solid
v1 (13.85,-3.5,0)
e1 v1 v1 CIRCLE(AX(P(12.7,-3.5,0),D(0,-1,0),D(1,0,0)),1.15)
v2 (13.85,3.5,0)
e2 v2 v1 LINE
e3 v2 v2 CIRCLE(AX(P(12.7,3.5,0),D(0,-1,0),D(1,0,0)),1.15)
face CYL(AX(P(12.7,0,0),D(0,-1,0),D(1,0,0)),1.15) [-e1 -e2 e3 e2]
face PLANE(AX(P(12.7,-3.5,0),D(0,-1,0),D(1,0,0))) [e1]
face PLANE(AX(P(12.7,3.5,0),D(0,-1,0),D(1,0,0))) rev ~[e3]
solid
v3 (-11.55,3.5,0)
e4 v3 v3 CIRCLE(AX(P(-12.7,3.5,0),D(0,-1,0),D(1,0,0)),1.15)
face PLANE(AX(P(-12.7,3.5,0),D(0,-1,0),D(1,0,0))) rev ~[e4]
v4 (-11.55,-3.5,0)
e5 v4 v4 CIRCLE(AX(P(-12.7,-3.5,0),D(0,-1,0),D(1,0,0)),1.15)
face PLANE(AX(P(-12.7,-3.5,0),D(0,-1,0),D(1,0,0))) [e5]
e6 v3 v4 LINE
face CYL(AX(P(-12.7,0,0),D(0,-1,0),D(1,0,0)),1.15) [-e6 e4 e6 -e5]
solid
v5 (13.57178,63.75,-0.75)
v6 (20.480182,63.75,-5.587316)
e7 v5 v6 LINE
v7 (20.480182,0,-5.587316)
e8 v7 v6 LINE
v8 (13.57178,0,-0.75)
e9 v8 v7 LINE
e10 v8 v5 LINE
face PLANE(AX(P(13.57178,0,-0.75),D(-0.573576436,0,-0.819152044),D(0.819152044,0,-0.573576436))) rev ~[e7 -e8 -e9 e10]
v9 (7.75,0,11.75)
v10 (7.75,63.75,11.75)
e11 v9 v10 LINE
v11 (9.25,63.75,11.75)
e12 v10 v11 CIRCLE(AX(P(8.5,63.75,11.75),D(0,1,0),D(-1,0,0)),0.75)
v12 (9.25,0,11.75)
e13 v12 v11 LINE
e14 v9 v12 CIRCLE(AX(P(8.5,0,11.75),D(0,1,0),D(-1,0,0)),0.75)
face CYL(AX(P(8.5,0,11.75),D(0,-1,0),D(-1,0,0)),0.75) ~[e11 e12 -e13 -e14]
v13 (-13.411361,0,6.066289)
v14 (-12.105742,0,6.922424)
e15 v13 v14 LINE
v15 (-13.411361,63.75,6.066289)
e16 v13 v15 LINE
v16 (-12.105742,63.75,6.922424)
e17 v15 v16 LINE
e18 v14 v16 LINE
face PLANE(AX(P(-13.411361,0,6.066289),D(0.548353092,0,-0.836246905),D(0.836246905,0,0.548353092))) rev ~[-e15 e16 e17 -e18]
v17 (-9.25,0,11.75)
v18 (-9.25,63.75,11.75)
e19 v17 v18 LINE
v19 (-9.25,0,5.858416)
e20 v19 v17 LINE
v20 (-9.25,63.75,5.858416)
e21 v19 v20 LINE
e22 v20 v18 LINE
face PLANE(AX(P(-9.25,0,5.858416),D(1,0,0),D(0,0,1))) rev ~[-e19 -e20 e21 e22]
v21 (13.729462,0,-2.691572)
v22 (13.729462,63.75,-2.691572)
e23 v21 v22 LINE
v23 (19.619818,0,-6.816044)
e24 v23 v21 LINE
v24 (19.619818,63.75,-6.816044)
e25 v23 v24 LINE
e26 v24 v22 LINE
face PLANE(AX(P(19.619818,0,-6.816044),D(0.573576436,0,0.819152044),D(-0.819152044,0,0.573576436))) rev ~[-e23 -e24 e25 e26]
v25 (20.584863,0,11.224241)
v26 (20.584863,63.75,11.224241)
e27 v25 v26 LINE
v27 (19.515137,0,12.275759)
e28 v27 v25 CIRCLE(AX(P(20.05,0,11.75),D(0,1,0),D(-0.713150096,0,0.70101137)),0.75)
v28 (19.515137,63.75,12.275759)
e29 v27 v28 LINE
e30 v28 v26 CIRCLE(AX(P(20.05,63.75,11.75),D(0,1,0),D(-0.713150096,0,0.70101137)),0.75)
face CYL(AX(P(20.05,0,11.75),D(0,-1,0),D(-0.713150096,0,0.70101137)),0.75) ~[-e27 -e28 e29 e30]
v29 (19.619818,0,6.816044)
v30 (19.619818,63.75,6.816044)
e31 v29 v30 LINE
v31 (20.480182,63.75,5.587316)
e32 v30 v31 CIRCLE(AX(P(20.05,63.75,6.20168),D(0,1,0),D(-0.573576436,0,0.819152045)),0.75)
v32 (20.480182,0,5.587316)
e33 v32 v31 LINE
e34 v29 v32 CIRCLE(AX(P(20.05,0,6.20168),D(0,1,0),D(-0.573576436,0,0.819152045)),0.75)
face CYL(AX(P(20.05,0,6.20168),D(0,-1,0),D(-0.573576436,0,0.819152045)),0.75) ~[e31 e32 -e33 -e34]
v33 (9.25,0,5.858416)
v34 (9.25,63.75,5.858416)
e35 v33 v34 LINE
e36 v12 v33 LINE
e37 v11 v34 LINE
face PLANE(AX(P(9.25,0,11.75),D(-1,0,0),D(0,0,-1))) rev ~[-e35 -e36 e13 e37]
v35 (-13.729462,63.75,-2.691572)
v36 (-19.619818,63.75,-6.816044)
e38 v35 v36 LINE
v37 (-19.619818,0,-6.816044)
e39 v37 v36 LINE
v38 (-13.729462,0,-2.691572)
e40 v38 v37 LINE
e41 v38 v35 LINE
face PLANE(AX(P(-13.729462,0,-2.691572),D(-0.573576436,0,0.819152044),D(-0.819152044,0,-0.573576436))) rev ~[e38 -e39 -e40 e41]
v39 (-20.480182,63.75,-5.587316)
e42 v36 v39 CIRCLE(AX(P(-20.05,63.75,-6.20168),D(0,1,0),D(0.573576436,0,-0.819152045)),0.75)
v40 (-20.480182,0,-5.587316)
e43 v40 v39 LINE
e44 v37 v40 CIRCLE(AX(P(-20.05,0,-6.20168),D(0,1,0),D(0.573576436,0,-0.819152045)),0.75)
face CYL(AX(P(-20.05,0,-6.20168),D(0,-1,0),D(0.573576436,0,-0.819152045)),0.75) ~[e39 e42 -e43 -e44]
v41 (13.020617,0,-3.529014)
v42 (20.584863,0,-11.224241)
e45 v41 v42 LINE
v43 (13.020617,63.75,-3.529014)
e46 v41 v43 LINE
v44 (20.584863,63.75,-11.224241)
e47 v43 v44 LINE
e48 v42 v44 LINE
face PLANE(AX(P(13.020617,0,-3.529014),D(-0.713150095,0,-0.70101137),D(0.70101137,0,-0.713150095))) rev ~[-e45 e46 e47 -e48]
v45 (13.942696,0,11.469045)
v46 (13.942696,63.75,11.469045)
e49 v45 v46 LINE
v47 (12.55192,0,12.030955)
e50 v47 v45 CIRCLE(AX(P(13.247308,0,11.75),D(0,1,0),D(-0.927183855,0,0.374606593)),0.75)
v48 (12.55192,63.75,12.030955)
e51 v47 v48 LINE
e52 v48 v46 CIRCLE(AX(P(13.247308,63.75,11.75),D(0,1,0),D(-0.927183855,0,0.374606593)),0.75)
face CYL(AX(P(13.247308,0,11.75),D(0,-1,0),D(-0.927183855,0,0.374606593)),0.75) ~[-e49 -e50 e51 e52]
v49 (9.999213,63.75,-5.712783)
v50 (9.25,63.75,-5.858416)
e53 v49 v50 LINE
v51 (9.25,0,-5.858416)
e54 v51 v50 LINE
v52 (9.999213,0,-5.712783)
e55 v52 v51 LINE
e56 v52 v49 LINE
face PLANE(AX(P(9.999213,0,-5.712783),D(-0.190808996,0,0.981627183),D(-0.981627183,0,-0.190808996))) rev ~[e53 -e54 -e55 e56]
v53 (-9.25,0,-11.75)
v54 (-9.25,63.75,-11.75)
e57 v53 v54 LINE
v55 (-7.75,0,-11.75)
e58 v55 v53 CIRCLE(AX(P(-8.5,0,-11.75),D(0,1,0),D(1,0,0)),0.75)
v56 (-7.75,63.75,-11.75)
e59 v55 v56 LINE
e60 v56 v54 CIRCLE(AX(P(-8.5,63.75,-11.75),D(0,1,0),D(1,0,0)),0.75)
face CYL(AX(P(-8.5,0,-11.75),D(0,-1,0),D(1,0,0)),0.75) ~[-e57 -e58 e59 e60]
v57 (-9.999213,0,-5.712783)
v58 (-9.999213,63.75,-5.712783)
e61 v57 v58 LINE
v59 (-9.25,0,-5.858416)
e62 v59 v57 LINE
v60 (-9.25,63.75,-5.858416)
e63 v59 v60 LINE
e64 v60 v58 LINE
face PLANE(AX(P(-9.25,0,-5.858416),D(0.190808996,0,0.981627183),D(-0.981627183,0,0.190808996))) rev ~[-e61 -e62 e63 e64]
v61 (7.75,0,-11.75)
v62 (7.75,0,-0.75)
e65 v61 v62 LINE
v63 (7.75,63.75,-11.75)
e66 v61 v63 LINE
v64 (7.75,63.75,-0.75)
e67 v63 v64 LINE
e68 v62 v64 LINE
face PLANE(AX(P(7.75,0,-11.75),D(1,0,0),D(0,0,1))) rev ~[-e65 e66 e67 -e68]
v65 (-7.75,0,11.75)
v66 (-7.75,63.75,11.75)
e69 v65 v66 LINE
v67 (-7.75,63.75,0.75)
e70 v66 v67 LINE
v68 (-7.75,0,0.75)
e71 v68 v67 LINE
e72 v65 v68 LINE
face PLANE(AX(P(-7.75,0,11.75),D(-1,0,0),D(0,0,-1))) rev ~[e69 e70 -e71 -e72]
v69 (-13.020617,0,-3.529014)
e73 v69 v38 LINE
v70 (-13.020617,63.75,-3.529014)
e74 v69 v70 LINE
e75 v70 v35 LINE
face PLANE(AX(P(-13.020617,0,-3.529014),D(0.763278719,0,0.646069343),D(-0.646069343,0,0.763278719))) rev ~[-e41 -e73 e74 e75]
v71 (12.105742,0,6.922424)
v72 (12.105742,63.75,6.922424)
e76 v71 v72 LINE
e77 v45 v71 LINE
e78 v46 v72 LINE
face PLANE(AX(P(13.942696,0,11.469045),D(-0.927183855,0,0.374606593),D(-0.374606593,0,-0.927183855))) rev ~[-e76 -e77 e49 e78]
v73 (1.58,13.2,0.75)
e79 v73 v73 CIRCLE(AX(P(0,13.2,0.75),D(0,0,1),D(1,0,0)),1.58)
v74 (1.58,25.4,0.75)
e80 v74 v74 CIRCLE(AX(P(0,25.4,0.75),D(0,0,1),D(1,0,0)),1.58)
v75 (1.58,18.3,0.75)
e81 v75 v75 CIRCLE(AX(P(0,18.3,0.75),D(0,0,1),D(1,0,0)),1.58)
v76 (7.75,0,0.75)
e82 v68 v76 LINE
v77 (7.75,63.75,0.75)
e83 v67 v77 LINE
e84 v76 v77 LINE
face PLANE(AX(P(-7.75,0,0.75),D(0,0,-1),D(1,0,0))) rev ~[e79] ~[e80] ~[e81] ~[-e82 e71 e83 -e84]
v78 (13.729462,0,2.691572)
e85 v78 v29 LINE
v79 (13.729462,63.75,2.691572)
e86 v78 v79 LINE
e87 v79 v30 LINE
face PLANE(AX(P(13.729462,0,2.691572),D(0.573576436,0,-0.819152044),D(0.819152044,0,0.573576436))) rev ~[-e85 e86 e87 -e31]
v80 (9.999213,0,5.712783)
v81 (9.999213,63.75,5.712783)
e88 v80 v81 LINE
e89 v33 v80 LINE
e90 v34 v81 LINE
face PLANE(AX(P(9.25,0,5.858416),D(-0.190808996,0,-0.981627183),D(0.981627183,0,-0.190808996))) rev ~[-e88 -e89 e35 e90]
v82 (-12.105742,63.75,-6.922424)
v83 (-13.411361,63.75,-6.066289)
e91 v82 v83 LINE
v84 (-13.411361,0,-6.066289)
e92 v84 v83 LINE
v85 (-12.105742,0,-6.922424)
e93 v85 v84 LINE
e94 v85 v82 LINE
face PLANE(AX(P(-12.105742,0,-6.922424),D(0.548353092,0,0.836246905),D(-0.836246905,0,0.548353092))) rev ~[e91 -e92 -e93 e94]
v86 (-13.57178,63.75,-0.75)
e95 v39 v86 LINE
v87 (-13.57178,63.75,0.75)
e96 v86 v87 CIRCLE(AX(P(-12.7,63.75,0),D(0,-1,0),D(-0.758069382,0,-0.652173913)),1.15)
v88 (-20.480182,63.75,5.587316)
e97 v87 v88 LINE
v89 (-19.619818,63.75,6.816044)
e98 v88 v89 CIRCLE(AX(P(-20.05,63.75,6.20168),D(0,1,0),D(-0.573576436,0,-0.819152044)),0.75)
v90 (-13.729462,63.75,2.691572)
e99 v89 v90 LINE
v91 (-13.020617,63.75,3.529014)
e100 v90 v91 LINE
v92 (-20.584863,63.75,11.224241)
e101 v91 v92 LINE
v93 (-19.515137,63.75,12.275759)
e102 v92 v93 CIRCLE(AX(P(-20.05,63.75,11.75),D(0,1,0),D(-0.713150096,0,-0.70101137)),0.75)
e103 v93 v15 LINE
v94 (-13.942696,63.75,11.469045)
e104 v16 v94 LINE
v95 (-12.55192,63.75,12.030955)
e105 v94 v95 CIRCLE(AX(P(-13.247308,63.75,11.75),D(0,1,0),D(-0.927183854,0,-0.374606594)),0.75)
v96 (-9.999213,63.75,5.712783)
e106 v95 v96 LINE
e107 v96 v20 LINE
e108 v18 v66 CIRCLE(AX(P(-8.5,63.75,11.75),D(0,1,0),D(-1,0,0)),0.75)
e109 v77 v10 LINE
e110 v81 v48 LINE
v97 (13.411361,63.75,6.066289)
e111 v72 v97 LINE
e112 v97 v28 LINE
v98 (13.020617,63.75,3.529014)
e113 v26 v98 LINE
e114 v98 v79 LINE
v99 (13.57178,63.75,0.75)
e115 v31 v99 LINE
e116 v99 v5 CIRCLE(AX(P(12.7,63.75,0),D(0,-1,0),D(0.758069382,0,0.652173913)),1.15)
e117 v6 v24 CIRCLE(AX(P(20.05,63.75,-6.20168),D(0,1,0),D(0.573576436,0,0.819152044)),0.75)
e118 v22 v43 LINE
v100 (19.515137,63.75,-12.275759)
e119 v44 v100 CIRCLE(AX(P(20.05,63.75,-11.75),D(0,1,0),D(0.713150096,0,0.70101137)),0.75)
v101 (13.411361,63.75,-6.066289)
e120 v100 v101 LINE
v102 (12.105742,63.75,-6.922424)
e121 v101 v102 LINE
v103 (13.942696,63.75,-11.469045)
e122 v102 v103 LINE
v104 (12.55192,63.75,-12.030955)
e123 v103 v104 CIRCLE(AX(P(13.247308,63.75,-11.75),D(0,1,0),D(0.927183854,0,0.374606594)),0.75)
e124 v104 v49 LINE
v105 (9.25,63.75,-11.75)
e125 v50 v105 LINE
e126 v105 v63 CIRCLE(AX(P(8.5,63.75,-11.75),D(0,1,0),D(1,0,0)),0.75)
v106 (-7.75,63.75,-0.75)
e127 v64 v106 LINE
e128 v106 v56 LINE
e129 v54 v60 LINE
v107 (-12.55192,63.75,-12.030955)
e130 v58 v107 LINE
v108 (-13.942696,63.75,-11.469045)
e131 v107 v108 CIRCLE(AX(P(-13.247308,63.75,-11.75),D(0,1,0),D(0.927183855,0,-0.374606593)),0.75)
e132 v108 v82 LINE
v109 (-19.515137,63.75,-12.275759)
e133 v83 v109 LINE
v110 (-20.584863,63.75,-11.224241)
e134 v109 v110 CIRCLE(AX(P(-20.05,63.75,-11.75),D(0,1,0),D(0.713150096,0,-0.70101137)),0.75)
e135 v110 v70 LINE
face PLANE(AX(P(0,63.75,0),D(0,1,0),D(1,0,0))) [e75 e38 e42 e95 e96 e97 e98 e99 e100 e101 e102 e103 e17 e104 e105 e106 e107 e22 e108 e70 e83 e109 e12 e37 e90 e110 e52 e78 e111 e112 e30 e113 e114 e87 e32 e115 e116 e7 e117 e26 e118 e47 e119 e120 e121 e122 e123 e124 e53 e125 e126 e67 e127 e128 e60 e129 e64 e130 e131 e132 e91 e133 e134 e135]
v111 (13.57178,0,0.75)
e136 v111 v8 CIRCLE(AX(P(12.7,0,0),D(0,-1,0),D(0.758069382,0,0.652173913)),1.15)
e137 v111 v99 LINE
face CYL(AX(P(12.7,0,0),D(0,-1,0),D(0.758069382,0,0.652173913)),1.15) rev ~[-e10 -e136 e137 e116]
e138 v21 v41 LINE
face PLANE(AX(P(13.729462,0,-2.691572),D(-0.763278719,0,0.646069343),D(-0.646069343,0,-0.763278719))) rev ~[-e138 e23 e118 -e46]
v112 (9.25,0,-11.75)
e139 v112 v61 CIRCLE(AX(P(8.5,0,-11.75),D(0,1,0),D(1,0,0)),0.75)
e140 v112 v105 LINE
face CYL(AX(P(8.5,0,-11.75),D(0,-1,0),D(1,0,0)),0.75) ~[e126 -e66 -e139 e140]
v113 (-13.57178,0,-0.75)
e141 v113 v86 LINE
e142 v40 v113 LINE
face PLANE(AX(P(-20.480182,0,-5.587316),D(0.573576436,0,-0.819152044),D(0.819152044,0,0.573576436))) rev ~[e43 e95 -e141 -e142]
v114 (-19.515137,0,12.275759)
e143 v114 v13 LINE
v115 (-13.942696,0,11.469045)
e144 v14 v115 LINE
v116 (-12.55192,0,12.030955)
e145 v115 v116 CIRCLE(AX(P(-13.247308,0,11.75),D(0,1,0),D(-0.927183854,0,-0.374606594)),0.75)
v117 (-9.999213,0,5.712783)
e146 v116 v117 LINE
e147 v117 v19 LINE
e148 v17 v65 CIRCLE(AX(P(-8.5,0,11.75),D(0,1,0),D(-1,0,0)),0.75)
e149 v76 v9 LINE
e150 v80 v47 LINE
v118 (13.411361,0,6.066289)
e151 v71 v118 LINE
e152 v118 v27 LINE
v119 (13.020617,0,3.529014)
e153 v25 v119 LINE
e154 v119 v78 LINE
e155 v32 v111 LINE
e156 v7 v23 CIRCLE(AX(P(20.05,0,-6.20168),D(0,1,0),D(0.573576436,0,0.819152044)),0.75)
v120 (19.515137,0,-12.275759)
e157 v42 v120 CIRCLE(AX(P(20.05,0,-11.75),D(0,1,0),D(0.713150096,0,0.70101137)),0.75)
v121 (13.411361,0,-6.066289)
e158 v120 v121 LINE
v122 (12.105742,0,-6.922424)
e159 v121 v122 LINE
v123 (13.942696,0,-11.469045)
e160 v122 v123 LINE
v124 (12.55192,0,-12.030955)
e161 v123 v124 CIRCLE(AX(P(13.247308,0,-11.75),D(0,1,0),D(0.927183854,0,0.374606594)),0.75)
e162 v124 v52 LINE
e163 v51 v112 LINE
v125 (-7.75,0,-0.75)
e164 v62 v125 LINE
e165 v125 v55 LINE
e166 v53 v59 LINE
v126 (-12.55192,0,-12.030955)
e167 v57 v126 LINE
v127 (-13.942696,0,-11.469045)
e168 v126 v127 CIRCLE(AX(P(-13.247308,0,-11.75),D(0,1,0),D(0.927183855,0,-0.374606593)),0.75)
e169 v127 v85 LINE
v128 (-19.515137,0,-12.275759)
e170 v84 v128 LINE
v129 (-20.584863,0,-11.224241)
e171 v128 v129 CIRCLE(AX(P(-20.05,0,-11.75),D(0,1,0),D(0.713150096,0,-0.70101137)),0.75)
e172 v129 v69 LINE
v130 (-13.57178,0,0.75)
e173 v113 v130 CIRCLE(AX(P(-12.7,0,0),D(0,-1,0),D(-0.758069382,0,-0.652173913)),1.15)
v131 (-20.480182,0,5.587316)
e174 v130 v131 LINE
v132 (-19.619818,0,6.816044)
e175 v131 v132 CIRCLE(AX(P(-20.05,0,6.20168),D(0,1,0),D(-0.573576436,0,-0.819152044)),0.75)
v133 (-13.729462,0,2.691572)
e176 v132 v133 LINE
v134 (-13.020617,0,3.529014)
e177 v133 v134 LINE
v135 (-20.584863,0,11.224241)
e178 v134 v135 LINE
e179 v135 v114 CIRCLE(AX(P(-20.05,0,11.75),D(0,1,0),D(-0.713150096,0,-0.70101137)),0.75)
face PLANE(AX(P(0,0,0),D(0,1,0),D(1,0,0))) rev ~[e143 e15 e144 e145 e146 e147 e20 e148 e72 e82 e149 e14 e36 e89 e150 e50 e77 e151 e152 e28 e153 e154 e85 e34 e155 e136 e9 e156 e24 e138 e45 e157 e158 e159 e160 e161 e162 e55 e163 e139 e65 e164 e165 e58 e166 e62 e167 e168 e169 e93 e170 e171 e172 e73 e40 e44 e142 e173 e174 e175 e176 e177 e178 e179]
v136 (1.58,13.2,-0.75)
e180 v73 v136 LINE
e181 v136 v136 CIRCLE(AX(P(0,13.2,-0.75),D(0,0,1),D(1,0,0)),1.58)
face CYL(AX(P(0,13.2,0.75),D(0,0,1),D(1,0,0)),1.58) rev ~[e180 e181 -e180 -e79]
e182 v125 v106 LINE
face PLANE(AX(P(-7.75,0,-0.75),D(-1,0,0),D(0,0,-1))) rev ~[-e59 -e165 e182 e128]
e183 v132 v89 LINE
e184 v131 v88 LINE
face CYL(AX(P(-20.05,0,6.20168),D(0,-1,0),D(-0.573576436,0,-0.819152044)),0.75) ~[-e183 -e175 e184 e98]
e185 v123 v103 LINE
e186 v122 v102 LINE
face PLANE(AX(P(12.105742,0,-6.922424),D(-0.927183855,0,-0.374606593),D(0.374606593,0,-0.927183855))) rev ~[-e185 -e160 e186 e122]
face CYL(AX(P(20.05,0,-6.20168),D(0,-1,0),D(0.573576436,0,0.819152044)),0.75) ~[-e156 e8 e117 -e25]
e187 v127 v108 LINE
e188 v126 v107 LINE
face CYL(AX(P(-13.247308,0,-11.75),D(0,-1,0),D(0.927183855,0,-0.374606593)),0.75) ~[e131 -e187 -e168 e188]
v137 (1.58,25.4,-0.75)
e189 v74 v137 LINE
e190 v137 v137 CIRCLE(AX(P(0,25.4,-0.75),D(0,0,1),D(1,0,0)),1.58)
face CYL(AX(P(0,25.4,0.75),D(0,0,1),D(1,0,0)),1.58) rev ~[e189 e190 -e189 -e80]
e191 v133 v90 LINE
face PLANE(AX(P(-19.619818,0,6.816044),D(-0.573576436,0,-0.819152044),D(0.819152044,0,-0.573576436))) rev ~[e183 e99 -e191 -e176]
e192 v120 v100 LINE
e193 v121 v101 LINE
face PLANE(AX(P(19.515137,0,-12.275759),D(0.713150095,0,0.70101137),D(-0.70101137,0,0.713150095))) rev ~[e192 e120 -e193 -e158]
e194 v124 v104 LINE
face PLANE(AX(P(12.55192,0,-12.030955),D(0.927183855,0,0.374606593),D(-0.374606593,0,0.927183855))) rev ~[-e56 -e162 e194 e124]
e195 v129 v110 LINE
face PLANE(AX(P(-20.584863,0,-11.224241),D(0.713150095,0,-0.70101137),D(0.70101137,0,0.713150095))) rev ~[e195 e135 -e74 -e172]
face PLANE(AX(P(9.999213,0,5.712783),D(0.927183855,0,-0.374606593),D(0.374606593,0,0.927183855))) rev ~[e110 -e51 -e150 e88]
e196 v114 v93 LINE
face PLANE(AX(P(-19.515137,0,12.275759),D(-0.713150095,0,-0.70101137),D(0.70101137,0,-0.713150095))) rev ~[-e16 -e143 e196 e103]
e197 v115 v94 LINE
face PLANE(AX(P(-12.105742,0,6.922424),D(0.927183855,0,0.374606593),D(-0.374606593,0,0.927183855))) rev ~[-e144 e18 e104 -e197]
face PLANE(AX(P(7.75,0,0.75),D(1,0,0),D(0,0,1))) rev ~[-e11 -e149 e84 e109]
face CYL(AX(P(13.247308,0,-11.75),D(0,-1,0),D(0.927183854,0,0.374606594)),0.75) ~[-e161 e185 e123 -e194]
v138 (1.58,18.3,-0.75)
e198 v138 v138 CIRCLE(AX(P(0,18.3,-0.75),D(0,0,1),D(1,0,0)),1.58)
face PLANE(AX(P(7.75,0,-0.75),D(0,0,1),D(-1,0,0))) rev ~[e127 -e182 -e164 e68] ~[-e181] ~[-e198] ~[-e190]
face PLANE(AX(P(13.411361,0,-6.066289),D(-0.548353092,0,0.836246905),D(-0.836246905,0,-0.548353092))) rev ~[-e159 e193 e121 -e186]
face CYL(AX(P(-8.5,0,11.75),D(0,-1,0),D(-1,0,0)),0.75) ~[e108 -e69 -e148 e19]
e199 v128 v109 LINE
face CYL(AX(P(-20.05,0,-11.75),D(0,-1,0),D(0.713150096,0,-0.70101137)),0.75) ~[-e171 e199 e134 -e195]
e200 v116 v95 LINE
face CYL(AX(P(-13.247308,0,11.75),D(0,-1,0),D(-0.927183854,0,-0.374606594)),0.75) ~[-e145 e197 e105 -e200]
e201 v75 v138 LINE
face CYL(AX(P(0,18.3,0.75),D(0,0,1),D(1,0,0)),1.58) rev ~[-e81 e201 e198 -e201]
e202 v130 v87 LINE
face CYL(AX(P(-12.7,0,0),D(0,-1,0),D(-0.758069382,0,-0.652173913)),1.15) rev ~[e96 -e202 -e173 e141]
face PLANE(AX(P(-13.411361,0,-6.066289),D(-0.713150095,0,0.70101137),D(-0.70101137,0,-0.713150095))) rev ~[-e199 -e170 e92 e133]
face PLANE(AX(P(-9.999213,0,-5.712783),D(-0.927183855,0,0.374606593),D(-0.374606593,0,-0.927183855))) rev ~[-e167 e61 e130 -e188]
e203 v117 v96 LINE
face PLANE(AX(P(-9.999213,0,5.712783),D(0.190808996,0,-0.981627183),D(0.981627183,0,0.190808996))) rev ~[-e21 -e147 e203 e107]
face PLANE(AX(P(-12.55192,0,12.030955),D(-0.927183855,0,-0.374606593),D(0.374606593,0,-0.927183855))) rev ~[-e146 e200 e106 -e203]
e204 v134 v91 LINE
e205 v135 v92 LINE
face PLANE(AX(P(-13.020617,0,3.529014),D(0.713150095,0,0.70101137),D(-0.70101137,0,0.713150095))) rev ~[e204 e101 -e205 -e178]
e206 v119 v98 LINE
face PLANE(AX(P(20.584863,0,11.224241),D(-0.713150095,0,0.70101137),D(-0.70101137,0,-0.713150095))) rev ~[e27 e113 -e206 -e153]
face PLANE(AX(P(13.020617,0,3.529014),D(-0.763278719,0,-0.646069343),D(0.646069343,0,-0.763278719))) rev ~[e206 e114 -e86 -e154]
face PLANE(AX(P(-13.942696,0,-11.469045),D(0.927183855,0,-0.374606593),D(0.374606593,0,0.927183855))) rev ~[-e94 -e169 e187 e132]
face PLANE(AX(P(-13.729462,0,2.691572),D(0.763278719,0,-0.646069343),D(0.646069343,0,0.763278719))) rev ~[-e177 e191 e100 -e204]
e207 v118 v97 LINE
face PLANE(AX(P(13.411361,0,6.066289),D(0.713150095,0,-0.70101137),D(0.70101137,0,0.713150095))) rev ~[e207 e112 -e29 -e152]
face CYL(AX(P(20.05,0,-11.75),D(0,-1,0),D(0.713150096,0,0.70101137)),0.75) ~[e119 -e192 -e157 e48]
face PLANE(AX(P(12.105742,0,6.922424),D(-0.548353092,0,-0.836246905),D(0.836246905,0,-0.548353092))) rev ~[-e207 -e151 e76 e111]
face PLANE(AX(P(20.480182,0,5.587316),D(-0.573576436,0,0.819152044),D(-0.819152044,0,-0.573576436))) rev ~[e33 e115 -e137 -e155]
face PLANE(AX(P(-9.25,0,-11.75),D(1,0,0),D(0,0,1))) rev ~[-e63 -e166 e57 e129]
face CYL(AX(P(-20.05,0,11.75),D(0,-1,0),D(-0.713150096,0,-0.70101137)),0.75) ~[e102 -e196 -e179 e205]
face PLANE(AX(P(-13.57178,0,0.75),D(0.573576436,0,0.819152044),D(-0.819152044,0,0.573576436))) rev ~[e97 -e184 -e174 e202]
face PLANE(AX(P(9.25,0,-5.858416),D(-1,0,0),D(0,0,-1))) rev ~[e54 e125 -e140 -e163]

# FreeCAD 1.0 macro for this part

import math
import FreeCAD as App
import Part
import Sketcher
Q = App.Units.Quantity

doc = App.newDocument("Part")
body = doc.addObject("PartDesign::Body", "Body")

# Sketch on XZ plane
sketch1 = doc.addObject("Sketcher::SketchObject", "Sketch")
body.addObject(sketch1)
sketch1.AttachmentSupport = (doc.XZ_Plane, [""])
sketch1.MapMode = "FlatFace"
sketch1.addGeometry(Part.LineSegment(App.Vector(7.8, -11.8, 0), App.Vector(7.8, -0.8, 0)), False)
sketch1.addGeometry(Part.LineSegment(App.Vector(7.8, -0.8, 0), App.Vector(-7.8, -0.8, 0)), False)
sketch1.addGeometry(Part.LineSegment(App.Vector(-7.8, -0.8, 0), App.Vector(-7.8, -11.8, 0)), False)
sketch1.addGeometry(Part.ArcOfCircle(Part.Circle(App.Vector(-8.5, -11.8, 0), App.Vector(0, 0, 1), 0.8), math.radians(180), math.radians(360)), False)
sketch1.addGeometry(Part.LineSegment(App.Vector(-9.2, -11.8, 0), App.Vector(-9.2, -5.9, 0)), False)
sketch1.addGeometry(Part.LineSegment(App.Vector(-9.2, -5.9, 0), App.Vector(-10, -5.7, 0)), False)
sketch1.addGeometry(Part.LineSegment(App.Vector(-10, -5.7, 0), App.Vector(-12.6, -12, 0)), False)
sketch1.addGeometry(Part.ArcOfCircle(Part.Circle(App.Vector(-13.2, -11.8, 0), App.Vector(0, 0, 1), 0.8), math.radians(158), math.radians(338)), False)
sketch1.addGeometry(Part.LineSegment(App.Vector(-13.9, -11.5, 0), App.Vector(-12.1, -6.9, 0)), False)
sketch1.addGeometry(Part.LineSegment(App.Vector(-12.1, -6.9, 0), App.Vector(-13.4, -6.1, 0)), False)
sketch1.addGeometry(Part.LineSegment(App.Vector(-13.4, -6.1, 0), App.Vector(-19.5, -12.3, 0)), False)
sketch1.addGeometry(Part.ArcOfCircle(Part.Circle(App.Vector(-20.1, -11.8, 0), App.Vector(0, 0, 1), 0.8), math.radians(135), math.radians(315)), False)
sketch1.addGeometry(Part.LineSegment(App.Vector(-20.6, -11.2, 0), App.Vector(-13, -3.5, 0)), False)
sketch1.addGeometry(Part.LineSegment(App.Vector(-13, -3.5, 0), App.Vector(-13.7, -2.7, 0)), False)
sketch1.addGeometry(Part.LineSegment(App.Vector(-13.7, -2.7, 0), App.Vector(-19.6, -6.8, 0)), False)
sketch1.addGeometry(Part.ArcOfCircle(Part.Circle(App.Vector(-20.1, -6.2, 0), App.Vector(0, 0, 1), 0.8), math.radians(125), math.radians(305)), False)
sketch1.addGeometry(Part.LineSegment(App.Vector(-20.5, -5.6, 0), App.Vector(-13.6, -0.8, 0)), False)
sketch1.addGeometry(Part.ArcOfCircle(Part.Circle(App.Vector(-12.7, 0, 0), App.Vector(0, 0, 1), 1.1), math.radians(-139), math.radians(139)), False)
sketch1.addGeometry(Part.LineSegment(App.Vector(-13.6, 0.8, 0), App.Vector(-20.5, 5.6, 0)), False)
sketch1.addGeometry(Part.ArcOfCircle(Part.Circle(App.Vector(-20.1, 6.2, 0), App.Vector(0, 0, 1), 0.8), math.radians(55), math.radians(235)), False)
sketch1.addGeometry(Part.LineSegment(App.Vector(-19.6, 6.8, 0), App.Vector(-13.7, 2.7, 0)), False)
sketch1.addGeometry(Part.LineSegment(App.Vector(-13.7, 2.7, 0), App.Vector(-13, 3.5, 0)), False)
sketch1.addGeometry(Part.LineSegment(App.Vector(-13, 3.5, 0), App.Vector(-20.6, 11.2, 0)), False)
sketch1.addGeometry(Part.ArcOfCircle(Part.Circle(App.Vector(-20.1, 11.8, 0), App.Vector(0, 0, 1), 0.8), math.radians(45), math.radians(225)), False)
sketch1.addGeometry(Part.LineSegment(App.Vector(-19.5, 12.3, 0), App.Vector(-13.4, 6.1, 0)), False)
sketch1.addGeometry(Part.LineSegment(App.Vector(-13.4, 6.1, 0), App.Vector(-12.1, 6.9, 0)), False)
sketch1.addGeometry(Part.LineSegment(App.Vector(-12.1, 6.9, 0), App.Vector(-13.9, 11.5, 0)), False)
sketch1.addGeometry(Part.ArcOfCircle(Part.Circle(App.Vector(-13.2, 11.8, 0), App.Vector(0, 0, 1), 0.8), math.radians(22), math.radians(202)), False)
sketch1.addGeometry(Part.LineSegment(App.Vector(-12.6, 12, 0), App.Vector(-10, 5.7, 0)), False)
sketch1.addGeometry(Part.LineSegment(App.Vector(-10, 5.7, 0), App.Vector(-9.2, 5.9, 0)), False)
sketch1.addGeometry(Part.LineSegment(App.Vector(-9.2, 5.9, 0), App.Vector(-9.2, 11.8, 0)), False)
sketch1.addGeometry(Part.ArcOfCircle(Part.Circle(App.Vector(-8.5, 11.8, 0), App.Vector(0, 0, 1), 0.8), math.radians(0), math.radians(180)), False)
sketch1.addGeometry(Part.LineSegment(App.Vector(-7.8, 11.8, 0), App.Vector(-7.8, 0.8, 0)), False)
sketch1.addGeometry(Part.LineSegment(App.Vector(-7.8, 0.8, 0), App.Vector(7.8, 0.8, 0)), False)
sketch1.addGeometry(Part.LineSegment(App.Vector(7.8, 0.8, 0), App.Vector(7.8, 11.8, 0)), False)
sketch1.addGeometry(Part.ArcOfCircle(Part.Circle(App.Vector(8.5, 11.8, 0), App.Vector(0, 0, 1), 0.8), math.radians(0), math.radians(180)), False)
sketch1.addGeometry(Part.LineSegment(App.Vector(9.2, 11.8, 0), App.Vector(9.2, 5.9, 0)), False)
sketch1.addGeometry(Part.LineSegment(App.Vector(9.2, 5.9, 0), App.Vector(10, 5.7, 0)), False)
sketch1.addGeometry(Part.LineSegment(App.Vector(10, 5.7, 0), App.Vector(12.6, 12, 0)), False)
sketch1.addGeometry(Part.ArcOfCircle(Part.Circle(App.Vector(13.2, 11.8, 0), App.Vector(0, 0, 1), 0.8), math.radians(-22), math.radians(158)), False)
sketch1.addGeometry(Part.LineSegment(App.Vector(13.9, 11.5, 0), App.Vector(12.1, 6.9, 0)), False)
sketch1.addGeometry(Part.LineSegment(App.Vector(12.1, 6.9, 0), App.Vector(13.4, 6.1, 0)), False)
sketch1.addGeometry(Part.LineSegment(App.Vector(13.4, 6.1, 0), App.Vector(19.5, 12.3, 0)), False)
sketch1.addGeometry(Part.ArcOfCircle(Part.Circle(App.Vector(20.1, 11.8, 0), App.Vector(0, 0, 1), 0.8), math.radians(-45), math.radians(135)), False)
sketch1.addGeometry(Part.LineSegment(App.Vector(20.6, 11.2, 0), App.Vector(13, 3.5, 0)), False)
sketch1.addGeometry(Part.LineSegment(App.Vector(13, 3.5, 0), App.Vector(13.7, 2.7, 0)), False)
sketch1.addGeometry(Part.LineSegment(App.Vector(13.7, 2.7, 0), App.Vector(19.6, 6.8, 0)), False)
sketch1.addGeometry(Part.ArcOfCircle(Part.Circle(App.Vector(20.1, 6.2, 0), App.Vector(0, 0, 1), 0.8), math.radians(-55), math.radians(125)), False)
sketch1.addGeometry(Part.LineSegment(App.Vector(20.5, 5.6, 0), App.Vector(13.6, 0.8, 0)), False)
sketch1.addGeometry(Part.ArcOfCircle(Part.Circle(App.Vector(12.7, 0, 0), App.Vector(0, 0, 1), 1.1), math.radians(41), math.radians(319)), False)
sketch1.addGeometry(Part.LineSegment(App.Vector(13.6, -0.8, 0), App.Vector(20.5, -5.6, 0)), False)
sketch1.addGeometry(Part.ArcOfCircle(Part.Circle(App.Vector(20.1, -6.2, 0), App.Vector(0, 0, 1), 0.8), math.radians(-125), math.radians(55)), False)
sketch1.addGeometry(Part.LineSegment(App.Vector(19.6, -6.8, 0), App.Vector(13.7, -2.7, 0)), False)
sketch1.addGeometry(Part.LineSegment(App.Vector(13.7, -2.7, 0), App.Vector(13, -3.5, 0)), False)
sketch1.addGeometry(Part.LineSegment(App.Vector(13, -3.5, 0), App.Vector(20.6, -11.2, 0)), False)
sketch1.addGeometry(Part.ArcOfCircle(Part.Circle(App.Vector(20.1, -11.8, 0), App.Vector(0, 0, 1), 0.8), math.radians(-135), math.radians(45)), False)
sketch1.addGeometry(Part.LineSegment(App.Vector(19.5, -12.3, 0), App.Vector(13.4, -6.1, 0)), False)
sketch1.addGeometry(Part.LineSegment(App.Vector(13.4, -6.1, 0), App.Vector(12.1, -6.9, 0)), False)
sketch1.addGeometry(Part.LineSegment(App.Vector(12.1, -6.9, 0), App.Vector(13.9, -11.5, 0)), False)
sketch1.addGeometry(Part.ArcOfCircle(Part.Circle(App.Vector(13.2, -11.8, 0), App.Vector(0, 0, 1), 0.8), math.radians(-158), math.radians(22)), False)
sketch1.addGeometry(Part.LineSegment(App.Vector(12.6, -12, 0), App.Vector(10, -5.7, 0)), False)
sketch1.addGeometry(Part.LineSegment(App.Vector(10, -5.7, 0), App.Vector(9.2, -5.9, 0)), False)
sketch1.addGeometry(Part.LineSegment(App.Vector(9.2, -5.9, 0), App.Vector(9.2, -11.8, 0)), False)
sketch1.addGeometry(Part.ArcOfCircle(Part.Circle(App.Vector(8.5, -11.8, 0), App.Vector(0, 0, 1), 0.8), math.radians(180), math.radians(360)), False)
sketch1.addConstraint(Sketcher.Constraint("Coincident", 0, 2, 1, 1))
sketch1.addConstraint(Sketcher.Constraint("Coincident", 1, 2, 2, 1))
sketch1.addConstraint(Sketcher.Constraint("Tangent", 2, 2, 3, 2))
sketch1.addConstraint(Sketcher.Constraint("Tangent", 3, 1, 4, 1))
sketch1.addConstraint(Sketcher.Constraint("Coincident", 4, 2, 5, 1))
sketch1.addConstraint(Sketcher.Constraint("Coincident", 5, 2, 6, 1))
sketch1.addConstraint(Sketcher.Constraint("Tangent", 6, 2, 7, 2))
sketch1.addConstraint(Sketcher.Constraint("Tangent", 7, 1, 8, 1))
sketch1.addConstraint(Sketcher.Constraint("Coincident", 8, 2, 9, 1))
sketch1.addConstraint(Sketcher.Constraint("Coincident", 9, 2, 10, 1))
sketch1.addConstraint(Sketcher.Constraint("Tangent", 10, 2, 11, 2))
sketch1.addConstraint(Sketcher.Constraint("Tangent", 11, 1, 12, 1))
sketch1.addConstraint(Sketcher.Constraint("Coincident", 12, 2, 13, 1))
sketch1.addConstraint(Sketcher.Constraint("Coincident", 13, 2, 14, 1))
sketch1.addConstraint(Sketcher.Constraint("Tangent", 14, 2, 15, 2))
sketch1.addConstraint(Sketcher.Constraint("Tangent", 15, 1, 16, 1))
sketch1.addConstraint(Sketcher.Constraint("Coincident", 16, 2, 17, 1))
sketch1.addConstraint(Sketcher.Constraint("Coincident", 17, 2, 18, 1))
sketch1.addConstraint(Sketcher.Constraint("Tangent", 18, 2, 19, 2))
sketch1.addConstraint(Sketcher.Constraint("Tangent", 19, 1, 20, 1))
sketch1.addConstraint(Sketcher.Constraint("Coincident", 20, 2, 21, 1))
sketch1.addConstraint(Sketcher.Constraint("Coincident", 21, 2, 22, 1))
sketch1.addConstraint(Sketcher.Constraint("Tangent", 22, 2, 23, 2))
sketch1.addConstraint(Sketcher.Constraint("Tangent", 23, 1, 24, 1))
sketch1.addConstraint(Sketcher.Constraint("Coincident", 24, 2, 25, 1))
sketch1.addConstraint(Sketcher.Constraint("Coincident", 25, 2, 26, 1))
sketch1.addConstraint(Sketcher.Constraint("Tangent", 26, 2, 27, 2))
sketch1.addConstraint(Sketcher.Constraint("Tangent", 27, 1, 28, 1))
sketch1.addConstraint(Sketcher.Constraint("Coincident", 28, 2, 29, 1))
sketch1.addConstraint(Sketcher.Constraint("Coincident", 29, 2, 30, 1))
sketch1.addConstraint(Sketcher.Constraint("Tangent", 30, 2, 31, 2))
sketch1.addConstraint(Sketcher.Constraint("Tangent", 31, 1, 32, 1))
sketch1.addConstraint(Sketcher.Constraint("Coincident", 32, 2, 33, 1))
sketch1.addConstraint(Sketcher.Constraint("Coincident", 33, 2, 34, 1))
sketch1.addConstraint(Sketcher.Constraint("Tangent", 34, 2, 35, 2))
sketch1.addConstraint(Sketcher.Constraint("Tangent", 35, 1, 36, 1))
sketch1.addConstraint(Sketcher.Constraint("Coincident", 36, 2, 37, 1))
sketch1.addConstraint(Sketcher.Constraint("Coincident", 37, 2, 38, 1))
sketch1.addConstraint(Sketcher.Constraint("Tangent", 38, 2, 39, 2))
sketch1.addConstraint(Sketcher.Constraint("Tangent", 39, 1, 40, 1))
sketch1.addConstraint(Sketcher.Constraint("Coincident", 40, 2, 41, 1))
sketch1.addConstraint(Sketcher.Constraint("Coincident", 41, 2, 42, 1))
sketch1.addConstraint(Sketcher.Constraint("Tangent", 42, 2, 43, 2))
sketch1.addConstraint(Sketcher.Constraint("Tangent", 43, 1, 44, 1))
sketch1.addConstraint(Sketcher.Constraint("Coincident", 44, 2, 45, 1))
sketch1.addConstraint(Sketcher.Constraint("Coincident", 45, 2, 46, 1))
sketch1.addConstraint(Sketcher.Constraint("Tangent", 46, 2, 47, 2))
sketch1.addConstraint(Sketcher.Constraint("Tangent", 47, 1, 48, 1))
sketch1.addConstraint(Sketcher.Constraint("Coincident", 48, 2, 49, 1))
sketch1.addConstraint(Sketcher.Constraint("Coincident", 49, 2, 50, 1))
sketch1.addConstraint(Sketcher.Constraint("Tangent", 50, 2, 51, 2))
sketch1.addConstraint(Sketcher.Constraint("Tangent", 51, 1, 52, 1))
sketch1.addConstraint(Sketcher.Constraint("Coincident", 52, 2, 53, 1))
sketch1.addConstraint(Sketcher.Constraint("Coincident", 53, 2, 54, 1))
sketch1.addConstraint(Sketcher.Constraint("Tangent", 54, 2, 55, 2))
sketch1.addConstraint(Sketcher.Constraint("Tangent", 55, 1, 56, 1))
sketch1.addConstraint(Sketcher.Constraint("Coincident", 56, 2, 57, 1))
sketch1.addConstraint(Sketcher.Constraint("Coincident", 57, 2, 58, 1))
sketch1.addConstraint(Sketcher.Constraint("Tangent", 58, 2, 59, 2))
sketch1.addConstraint(Sketcher.Constraint("Tangent", 59, 1, 60, 1))
sketch1.addConstraint(Sketcher.Constraint("Coincident", 60, 2, 61, 1))
sketch1.addConstraint(Sketcher.Constraint("Coincident", 61, 2, 62, 1))
sketch1.addConstraint(Sketcher.Constraint("Tangent", 62, 2, 63, 2))
sketch1.addConstraint(Sketcher.Constraint("Tangent", 63, 1, 0, 1))
sketch1.addConstraint(Sketcher.Constraint("Vertical", 0))
sketch1.addConstraint(Sketcher.Constraint("Horizontal", 1))
sketch1.addConstraint(Sketcher.Constraint("Vertical", 2))
sketch1.addConstraint(Sketcher.Constraint("Vertical", 4))
sketch1.addConstraint(Sketcher.Constraint("Vertical", 30))
sketch1.addConstraint(Sketcher.Constraint("Vertical", 32))
sketch1.addConstraint(Sketcher.Constraint("Horizontal", 33))
sketch1.addConstraint(Sketcher.Constraint("Vertical", 34))
sketch1.addConstraint(Sketcher.Constraint("Vertical", 36))
sketch1.addConstraint(Sketcher.Constraint("Vertical", 62))
sketch1.addConstraint(Sketcher.Constraint("Equal", 3, 7))
sketch1.addConstraint(Sketcher.Constraint("Equal", 7, 11))
sketch1.addConstraint(Sketcher.Constraint("Equal", 11, 15))
sketch1.addConstraint(Sketcher.Constraint("Equal", 15, 19))
sketch1.addConstraint(Sketcher.Constraint("Equal", 19, 23))
sketch1.addConstraint(Sketcher.Constraint("Equal", 23, 27))
sketch1.addConstraint(Sketcher.Constraint("Equal", 27, 31))
sketch1.addConstraint(Sketcher.Constraint("Equal", 31, 35))
sketch1.addConstraint(Sketcher.Constraint("Equal", 35, 39))
sketch1.addConstraint(Sketcher.Constraint("Equal", 39, 43))
sketch1.addConstraint(Sketcher.Constraint("Equal", 43, 47))
sketch1.addConstraint(Sketcher.Constraint("Equal", 17, 49))
sketch1.addConstraint(Sketcher.Constraint("Equal", 47, 51))
sketch1.addConstraint(Sketcher.Constraint("Equal", 51, 55))
sketch1.addConstraint(Sketcher.Constraint("Equal", 55, 59))
sketch1.addConstraint(Sketcher.Constraint("Equal", 59, 63))
sketch1.addConstraint(Sketcher.Constraint("Symmetric", 3, 3, 35, 3, -1, 1))
sketch1.addConstraint(Sketcher.Constraint("Symmetric", 7, 3, 39, 3, -1, 1))
sketch1.addConstraint(Sketcher.Constraint("Symmetric", 11, 3, 43, 3, -1, 1))
sketch1.addConstraint(Sketcher.Constraint("Symmetric", 15, 3, 47, 3, -1, 1))
sketch1.addConstraint(Sketcher.Constraint("Symmetric", 17, 3, 49, 3, -1, 1))
sketch1.addConstraint(Sketcher.Constraint("Symmetric", 19, 3, 51, 3, -1, 1))
sketch1.addConstraint(Sketcher.Constraint("Symmetric", 23, 3, 55, 3, -1, 1))
sketch1.addConstraint(Sketcher.Constraint("Symmetric", 27, 3, 59, 3, -1, 1))
sketch1.addConstraint(Sketcher.Constraint("Symmetric", 31, 3, 63, 3, -1, 1))
sketch1.addConstraint(Sketcher.Constraint("Symmetric", 5, 2, 37, 2, -1, 1))
sketch1.addConstraint(Sketcher.Constraint("Symmetric", 8, 2, 40, 2, -1, 1))
sketch1.addConstraint(Sketcher.Constraint("Symmetric", 9, 2, 41, 2, -1, 1))
sketch1.addConstraint(Sketcher.Constraint("Symmetric", 12, 2, 44, 2, -1, 1))
sketch1.addConstraint(Sketcher.Constraint("Symmetric", 13, 2, 45, 2, -1, 1))
sketch1.addConstraint(Sketcher.Constraint("Symmetric", 20, 2, 52, 2, -1, 1))
sketch1.addConstraint(Sketcher.Constraint("Symmetric", 21, 2, 53, 2, -1, 1))
sketch1.addConstraint(Sketcher.Constraint("Symmetric", 24, 2, 56, 2, -1, 1))
sketch1.addConstraint(Sketcher.Constraint("Symmetric", 25, 2, 57, 2, -1, 1))
sketch1.addConstraint(Sketcher.Constraint("Symmetric", 28, 2, 60, 2, -1, 1))
sketch1.addConstraint(Sketcher.Constraint("Symmetric", 31, 3, 35, 3, -2))
sketch1.addConstraint(Sketcher.Constraint("Symmetric", 27, 3, 39, 3, -2))
sketch1.addConstraint(Sketcher.Constraint("Symmetric", 23, 3, 43, 3, -2))
sketch1.addConstraint(Sketcher.Constraint("Symmetric", 19, 3, 47, 3, -2))
sketch1.addConstraint(Sketcher.Constraint("Symmetric", 28, 2, 37, 2, -2))
sketch1.addConstraint(Sketcher.Constraint("Symmetric", 25, 2, 40, 2, -2))
sketch1.addConstraint(Sketcher.Constraint("Symmetric", 24, 2, 41, 2, -2))
sketch1.addConstraint(Sketcher.Constraint("Symmetric", 21, 2, 44, 2, -2))
sketch1.addConstraint(Sketcher.Constraint("Symmetric", 20, 2, 45, 2, -2))
sketch1.addConstraint(Sketcher.Constraint("Symmetric", 17, 2, 48, 2, -2))
sketch1.addConstraint(Sketcher.Constraint("Parallel", 6, 8))
sketch1.addConstraint(Sketcher.Constraint("Parallel", 10, 12))
sketch1.addConstraint(Sketcher.Constraint("Parallel", 14, 16))
sketch1.addConstraint(Sketcher.Constraint("Parallel", 18, 20))
sketch1.addConstraint(Sketcher.Constraint("Parallel", 5, 37))
sketch1.addConstraint(Sketcher.Constraint("Parallel", 20, 50))
sketch1.addConstraint(Sketcher.Constraint("Parallel", 29, 61))
sketch1.addConstraint(Sketcher.Constraint("Horizontal", 3, 3, 7, 3))
sketch1.addConstraint(Sketcher.Constraint("Horizontal", 7, 3, 11, 3))
sketch1.addConstraint(Sketcher.Constraint("Horizontal", 1, 2, 16, 2))
sketch1.addConstraint(Sketcher.Constraint("Horizontal", 17, 2, 32, 2))
sketch1.addConstraint(Sketcher.Constraint("Horizontal", 29, 2, 36, 2))
sketch1.addConstraint(Sketcher.Constraint("Vertical", 11, 3, 15, 3))
sketch1.addConstraint(Sketcher.Constraint("DistanceY", 0, 1, 0, 2, 11.0))
sketch1.addConstraint(Sketcher.Constraint("Angle", 5, Q("169 deg")))
sketch1.addConstraint(Sketcher.Constraint("Angle", 6, Q("-112 deg")))
sketch1.addConstraint(Sketcher.Constraint("Angle", 14, Q("-145 deg")))
sketch1.addConstraint(Sketcher.Constraint("Radius", 3, 0.75))
sketch1.addConstraint(Sketcher.Constraint("Radius", 17, 1.15))
sketch1.addConstraint(Sketcher.Constraint("DistanceX", 1, 2, 1, 1, 15.5))
sketch1.addConstraint(Sketcher.Constraint("DistanceX", 17, 3, -1, 1, 12.7))
sketch1.addConstraint(Sketcher.Constraint("DistanceY", 3, 3, -1, 1, 11.75))
sketch1.addConstraint(Sketcher.Constraint("DistanceX", 11, 3, -1, 1, 20.05))
sketch1.addConstraint(Sketcher.Constraint("Distance", 10, 8.7071))
sketch1.addConstraint(Sketcher.Constraint("Distance", 8, 4.903689))
sketch1.addConstraint(Sketcher.Constraint("DistanceY", 4, 1, 4, 2, 5.891584))
sketch1.addConstraint(Sketcher.Constraint("DistanceX", 7, 3, -1, 1, 13.247308))
sketch1.addConstraint(Sketcher.Constraint("DistanceX", 9, 2, -1, 1, 13.411361))
sketch1.addConstraint(Sketcher.Constraint("DistanceX", 13, 2, -1, 1, 13.729462))
sketch1.addConstraint(Sketcher.Constraint("Distance", 12, 10.790474))
pad1 = doc.addObject("PartDesign::Pad", "Pad")
body.addObject(pad1)
pad1.Profile = sketch1
pad1.Length = 63.75
pad1.Reversed = True

# Sketch on XY plane
sketch2 = doc.addObject("Sketcher::SketchObject", "Sketch001")
body.addObject(sketch2)
sketch2.AttachmentSupport = (doc.XY_Plane, [""])
sketch2.MapMode = "FlatFace"
sketch2.AttachmentOffset = App.Placement(App.Vector(0, 0, 0.75), App.Rotation())
sketch2.addGeometry(Part.Circle(App.Vector(0, 13.2, 0), App.Vector(0, 0, 1), 1.6), False)
sketch2.addConstraint(Sketcher.Constraint("PointOnObject", 0, 3, -2))
sketch2.addConstraint(Sketcher.Constraint("Diameter", 0, 3.16))
sketch2.addConstraint(Sketcher.Constraint("DistanceY", -1, 1, 0, 3, 13.2))
pocket1 = doc.addObject("PartDesign::Pocket", "Pocket")
body.addObject(pocket1)
pocket1.Profile = sketch2
pocket1.Type = "UpToFirst"

# Sketch on XY plane
sketch3 = doc.addObject("Sketcher::SketchObject", "Sketch002")
body.addObject(sketch3)
sketch3.AttachmentSupport = (doc.XY_Plane, [""])
sketch3.MapMode = "FlatFace"
sketch3.AttachmentOffset = App.Placement(App.Vector(0, 0, 0.75), App.Rotation())
sketch3.addGeometry(Part.Circle(App.Vector(0, 18.3, 0), App.Vector(0, 0, 1), 1.6), False)
sketch3.addConstraint(Sketcher.Constraint("PointOnObject", 0, 3, -2))
sketch3.addConstraint(Sketcher.Constraint("Diameter", 0, 3.16))
sketch3.addConstraint(Sketcher.Constraint("DistanceY", -1, 1, 0, 3, 18.3))
pocket2 = doc.addObject("PartDesign::Pocket", "Pocket001")
body.addObject(pocket2)
pocket2.Profile = sketch3
pocket2.Type = "UpToFirst"

# Sketch on XY plane
sketch4 = doc.addObject("Sketcher::SketchObject", "Sketch003")
body.addObject(sketch4)
sketch4.AttachmentSupport = (doc.XY_Plane, [""])
sketch4.MapMode = "FlatFace"
sketch4.AttachmentOffset = App.Placement(App.Vector(0, 0, 0.75), App.Rotation())
sketch4.addGeometry(Part.Circle(App.Vector(0, 25.4, 0), App.Vector(0, 0, 1), 1.6), False)
sketch4.addConstraint(Sketcher.Constraint("PointOnObject", 0, 3, -2))
sketch4.addConstraint(Sketcher.Constraint("Diameter", 0, 3.16))
sketch4.addConstraint(Sketcher.Constraint("DistanceY", -1, 1, 0, 3, 25.4))
pocket3 = doc.addObject("PartDesign::Pocket", "Pocket002")
body.addObject(pocket3)
pocket3.Profile = sketch4
pocket3.Type = "UpToFirst"
body2 = doc.addObject("PartDesign::Body", "Body001")

# Sketch on XZ plane
sketch5 = doc.addObject("Sketcher::SketchObject", "Sketch004")
body2.addObject(sketch5)
sketch5.AttachmentSupport = (doc.getObject("XZ_Plane001"), [""])
sketch5.MapMode = "FlatFace"
sketch5.addGeometry(Part.Circle(App.Vector(-12.7, 0, 0), App.Vector(0, 0, 1), 1.1), False)
sketch5.addConstraint(Sketcher.Constraint("PointOnObject", 0, 3, -1))
sketch5.addConstraint(Sketcher.Constraint("Diameter", 0, 2.3))
sketch5.addConstraint(Sketcher.Constraint("DistanceX", 0, 3, -1, 1, 12.7))
pad2 = doc.addObject("PartDesign::Pad", "Pad001")
body2.addObject(pad2)
pad2.Profile = sketch5
pad2.Type = "TwoLengths"
pad2.Length = 3.5
pad2.Length2 = 3.5
body3 = doc.addObject("PartDesign::Body", "Body002")

# Sketch on XZ plane
sketch6 = doc.addObject("Sketcher::SketchObject", "Sketch005")
body3.addObject(sketch6)
sketch6.AttachmentSupport = (doc.getObject("XZ_Plane002"), [""])
sketch6.MapMode = "FlatFace"
sketch6.addGeometry(Part.Circle(App.Vector(12.7, 0, 0), App.Vector(0, 0, 1), 1.1), False)
sketch6.addConstraint(Sketcher.Constraint("PointOnObject", 0, 3, -1))
sketch6.addConstraint(Sketcher.Constraint("Diameter", 0, 2.3))
sketch6.addConstraint(Sketcher.Constraint("DistanceX", -1, 1, 0, 3, 12.7))
pad3 = doc.addObject("PartDesign::Pad", "Pad002")
body3.addObject(pad3)
pad3.Profile = sketch6
pad3.Type = "TwoLengths"
pad3.Length = 3.5
pad3.Length2 = 3.5

doc.recompute()
